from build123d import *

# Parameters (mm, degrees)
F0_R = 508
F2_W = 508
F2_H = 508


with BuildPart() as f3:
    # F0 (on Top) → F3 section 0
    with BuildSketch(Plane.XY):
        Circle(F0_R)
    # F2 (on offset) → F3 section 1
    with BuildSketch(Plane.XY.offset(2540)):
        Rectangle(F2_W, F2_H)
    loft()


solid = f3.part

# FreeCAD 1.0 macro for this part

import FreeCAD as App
import Part
import Sketcher

V = App.Vector
Q = App.Units.Quantity

doc = App.newDocument("Part")
body = doc.addObject("PartDesign::Body", "Body")

sketch1 = body.newObject("Sketcher::SketchObject", "Sketch")
sketch1.AttachmentSupport = (doc.getObject("XY_Plane"), [""])
sketch1.MapMode = "FlatFace"
sketch1.addGeometry(Part.Circle(V(0, 0, 0), V(0, 0, 1), 508), False)
sketch1.addConstraint([
    Sketcher.Constraint("Coincident", 0, 3, -1, 1),
    Sketcher.Constraint("Diameter", 0, Q("40 in")),
])

sketch2 = body.newObject("Sketcher::SketchObject", "Sketch001")
sketch2.AttachmentSupport = (doc.getObject("XY_Plane"), [""])
sketch2.MapMode = "FlatFace"
sketch2.AttachmentOffset = App.Placement(V(0, 0, 100 * 25.4), App.Rotation())
sketch2.addGeometry([
    Part.LineSegment(V(-254, 254, 0), V(-254, -254, 0)),
    Part.LineSegment(V(-254, -254, 0), V(254, -254, 0)),
    Part.LineSegment(V(254, -254, 0), V(254, 254, 0)),
    Part.LineSegment(V(254, 254, 0), V(-254, 254, 0)),
], False)
sketch2.addConstraint([
    Sketcher.Constraint("Coincident", 0, 2, 1, 1),
    Sketcher.Constraint("Coincident", 1, 2, 2, 1),
    Sketcher.Constraint("Coincident", 2, 2, 3, 1),
    Sketcher.Constraint("Coincident", 3, 2, 0, 1),
    Sketcher.Constraint("Vertical", 0),
    Sketcher.Constraint("Horizontal", 1),
    Sketcher.Constraint("Vertical", 2),
    Sketcher.Constraint("Horizontal", 3),
    Sketcher.Constraint("Symmetric", 0, 2, 2, 2, -1, 1),
    Sketcher.Constraint("Equal", 3, 0),
    Sketcher.Constraint("DistanceX", 1, 1, 1, 2, Q("20 in")),
])

additiveloft = body.newObject("PartDesign::AdditiveLoft", "AdditiveLoft")
additiveloft.Profile = sketch1
additiveloft.Sections = [sketch2]

doc.recompute()
